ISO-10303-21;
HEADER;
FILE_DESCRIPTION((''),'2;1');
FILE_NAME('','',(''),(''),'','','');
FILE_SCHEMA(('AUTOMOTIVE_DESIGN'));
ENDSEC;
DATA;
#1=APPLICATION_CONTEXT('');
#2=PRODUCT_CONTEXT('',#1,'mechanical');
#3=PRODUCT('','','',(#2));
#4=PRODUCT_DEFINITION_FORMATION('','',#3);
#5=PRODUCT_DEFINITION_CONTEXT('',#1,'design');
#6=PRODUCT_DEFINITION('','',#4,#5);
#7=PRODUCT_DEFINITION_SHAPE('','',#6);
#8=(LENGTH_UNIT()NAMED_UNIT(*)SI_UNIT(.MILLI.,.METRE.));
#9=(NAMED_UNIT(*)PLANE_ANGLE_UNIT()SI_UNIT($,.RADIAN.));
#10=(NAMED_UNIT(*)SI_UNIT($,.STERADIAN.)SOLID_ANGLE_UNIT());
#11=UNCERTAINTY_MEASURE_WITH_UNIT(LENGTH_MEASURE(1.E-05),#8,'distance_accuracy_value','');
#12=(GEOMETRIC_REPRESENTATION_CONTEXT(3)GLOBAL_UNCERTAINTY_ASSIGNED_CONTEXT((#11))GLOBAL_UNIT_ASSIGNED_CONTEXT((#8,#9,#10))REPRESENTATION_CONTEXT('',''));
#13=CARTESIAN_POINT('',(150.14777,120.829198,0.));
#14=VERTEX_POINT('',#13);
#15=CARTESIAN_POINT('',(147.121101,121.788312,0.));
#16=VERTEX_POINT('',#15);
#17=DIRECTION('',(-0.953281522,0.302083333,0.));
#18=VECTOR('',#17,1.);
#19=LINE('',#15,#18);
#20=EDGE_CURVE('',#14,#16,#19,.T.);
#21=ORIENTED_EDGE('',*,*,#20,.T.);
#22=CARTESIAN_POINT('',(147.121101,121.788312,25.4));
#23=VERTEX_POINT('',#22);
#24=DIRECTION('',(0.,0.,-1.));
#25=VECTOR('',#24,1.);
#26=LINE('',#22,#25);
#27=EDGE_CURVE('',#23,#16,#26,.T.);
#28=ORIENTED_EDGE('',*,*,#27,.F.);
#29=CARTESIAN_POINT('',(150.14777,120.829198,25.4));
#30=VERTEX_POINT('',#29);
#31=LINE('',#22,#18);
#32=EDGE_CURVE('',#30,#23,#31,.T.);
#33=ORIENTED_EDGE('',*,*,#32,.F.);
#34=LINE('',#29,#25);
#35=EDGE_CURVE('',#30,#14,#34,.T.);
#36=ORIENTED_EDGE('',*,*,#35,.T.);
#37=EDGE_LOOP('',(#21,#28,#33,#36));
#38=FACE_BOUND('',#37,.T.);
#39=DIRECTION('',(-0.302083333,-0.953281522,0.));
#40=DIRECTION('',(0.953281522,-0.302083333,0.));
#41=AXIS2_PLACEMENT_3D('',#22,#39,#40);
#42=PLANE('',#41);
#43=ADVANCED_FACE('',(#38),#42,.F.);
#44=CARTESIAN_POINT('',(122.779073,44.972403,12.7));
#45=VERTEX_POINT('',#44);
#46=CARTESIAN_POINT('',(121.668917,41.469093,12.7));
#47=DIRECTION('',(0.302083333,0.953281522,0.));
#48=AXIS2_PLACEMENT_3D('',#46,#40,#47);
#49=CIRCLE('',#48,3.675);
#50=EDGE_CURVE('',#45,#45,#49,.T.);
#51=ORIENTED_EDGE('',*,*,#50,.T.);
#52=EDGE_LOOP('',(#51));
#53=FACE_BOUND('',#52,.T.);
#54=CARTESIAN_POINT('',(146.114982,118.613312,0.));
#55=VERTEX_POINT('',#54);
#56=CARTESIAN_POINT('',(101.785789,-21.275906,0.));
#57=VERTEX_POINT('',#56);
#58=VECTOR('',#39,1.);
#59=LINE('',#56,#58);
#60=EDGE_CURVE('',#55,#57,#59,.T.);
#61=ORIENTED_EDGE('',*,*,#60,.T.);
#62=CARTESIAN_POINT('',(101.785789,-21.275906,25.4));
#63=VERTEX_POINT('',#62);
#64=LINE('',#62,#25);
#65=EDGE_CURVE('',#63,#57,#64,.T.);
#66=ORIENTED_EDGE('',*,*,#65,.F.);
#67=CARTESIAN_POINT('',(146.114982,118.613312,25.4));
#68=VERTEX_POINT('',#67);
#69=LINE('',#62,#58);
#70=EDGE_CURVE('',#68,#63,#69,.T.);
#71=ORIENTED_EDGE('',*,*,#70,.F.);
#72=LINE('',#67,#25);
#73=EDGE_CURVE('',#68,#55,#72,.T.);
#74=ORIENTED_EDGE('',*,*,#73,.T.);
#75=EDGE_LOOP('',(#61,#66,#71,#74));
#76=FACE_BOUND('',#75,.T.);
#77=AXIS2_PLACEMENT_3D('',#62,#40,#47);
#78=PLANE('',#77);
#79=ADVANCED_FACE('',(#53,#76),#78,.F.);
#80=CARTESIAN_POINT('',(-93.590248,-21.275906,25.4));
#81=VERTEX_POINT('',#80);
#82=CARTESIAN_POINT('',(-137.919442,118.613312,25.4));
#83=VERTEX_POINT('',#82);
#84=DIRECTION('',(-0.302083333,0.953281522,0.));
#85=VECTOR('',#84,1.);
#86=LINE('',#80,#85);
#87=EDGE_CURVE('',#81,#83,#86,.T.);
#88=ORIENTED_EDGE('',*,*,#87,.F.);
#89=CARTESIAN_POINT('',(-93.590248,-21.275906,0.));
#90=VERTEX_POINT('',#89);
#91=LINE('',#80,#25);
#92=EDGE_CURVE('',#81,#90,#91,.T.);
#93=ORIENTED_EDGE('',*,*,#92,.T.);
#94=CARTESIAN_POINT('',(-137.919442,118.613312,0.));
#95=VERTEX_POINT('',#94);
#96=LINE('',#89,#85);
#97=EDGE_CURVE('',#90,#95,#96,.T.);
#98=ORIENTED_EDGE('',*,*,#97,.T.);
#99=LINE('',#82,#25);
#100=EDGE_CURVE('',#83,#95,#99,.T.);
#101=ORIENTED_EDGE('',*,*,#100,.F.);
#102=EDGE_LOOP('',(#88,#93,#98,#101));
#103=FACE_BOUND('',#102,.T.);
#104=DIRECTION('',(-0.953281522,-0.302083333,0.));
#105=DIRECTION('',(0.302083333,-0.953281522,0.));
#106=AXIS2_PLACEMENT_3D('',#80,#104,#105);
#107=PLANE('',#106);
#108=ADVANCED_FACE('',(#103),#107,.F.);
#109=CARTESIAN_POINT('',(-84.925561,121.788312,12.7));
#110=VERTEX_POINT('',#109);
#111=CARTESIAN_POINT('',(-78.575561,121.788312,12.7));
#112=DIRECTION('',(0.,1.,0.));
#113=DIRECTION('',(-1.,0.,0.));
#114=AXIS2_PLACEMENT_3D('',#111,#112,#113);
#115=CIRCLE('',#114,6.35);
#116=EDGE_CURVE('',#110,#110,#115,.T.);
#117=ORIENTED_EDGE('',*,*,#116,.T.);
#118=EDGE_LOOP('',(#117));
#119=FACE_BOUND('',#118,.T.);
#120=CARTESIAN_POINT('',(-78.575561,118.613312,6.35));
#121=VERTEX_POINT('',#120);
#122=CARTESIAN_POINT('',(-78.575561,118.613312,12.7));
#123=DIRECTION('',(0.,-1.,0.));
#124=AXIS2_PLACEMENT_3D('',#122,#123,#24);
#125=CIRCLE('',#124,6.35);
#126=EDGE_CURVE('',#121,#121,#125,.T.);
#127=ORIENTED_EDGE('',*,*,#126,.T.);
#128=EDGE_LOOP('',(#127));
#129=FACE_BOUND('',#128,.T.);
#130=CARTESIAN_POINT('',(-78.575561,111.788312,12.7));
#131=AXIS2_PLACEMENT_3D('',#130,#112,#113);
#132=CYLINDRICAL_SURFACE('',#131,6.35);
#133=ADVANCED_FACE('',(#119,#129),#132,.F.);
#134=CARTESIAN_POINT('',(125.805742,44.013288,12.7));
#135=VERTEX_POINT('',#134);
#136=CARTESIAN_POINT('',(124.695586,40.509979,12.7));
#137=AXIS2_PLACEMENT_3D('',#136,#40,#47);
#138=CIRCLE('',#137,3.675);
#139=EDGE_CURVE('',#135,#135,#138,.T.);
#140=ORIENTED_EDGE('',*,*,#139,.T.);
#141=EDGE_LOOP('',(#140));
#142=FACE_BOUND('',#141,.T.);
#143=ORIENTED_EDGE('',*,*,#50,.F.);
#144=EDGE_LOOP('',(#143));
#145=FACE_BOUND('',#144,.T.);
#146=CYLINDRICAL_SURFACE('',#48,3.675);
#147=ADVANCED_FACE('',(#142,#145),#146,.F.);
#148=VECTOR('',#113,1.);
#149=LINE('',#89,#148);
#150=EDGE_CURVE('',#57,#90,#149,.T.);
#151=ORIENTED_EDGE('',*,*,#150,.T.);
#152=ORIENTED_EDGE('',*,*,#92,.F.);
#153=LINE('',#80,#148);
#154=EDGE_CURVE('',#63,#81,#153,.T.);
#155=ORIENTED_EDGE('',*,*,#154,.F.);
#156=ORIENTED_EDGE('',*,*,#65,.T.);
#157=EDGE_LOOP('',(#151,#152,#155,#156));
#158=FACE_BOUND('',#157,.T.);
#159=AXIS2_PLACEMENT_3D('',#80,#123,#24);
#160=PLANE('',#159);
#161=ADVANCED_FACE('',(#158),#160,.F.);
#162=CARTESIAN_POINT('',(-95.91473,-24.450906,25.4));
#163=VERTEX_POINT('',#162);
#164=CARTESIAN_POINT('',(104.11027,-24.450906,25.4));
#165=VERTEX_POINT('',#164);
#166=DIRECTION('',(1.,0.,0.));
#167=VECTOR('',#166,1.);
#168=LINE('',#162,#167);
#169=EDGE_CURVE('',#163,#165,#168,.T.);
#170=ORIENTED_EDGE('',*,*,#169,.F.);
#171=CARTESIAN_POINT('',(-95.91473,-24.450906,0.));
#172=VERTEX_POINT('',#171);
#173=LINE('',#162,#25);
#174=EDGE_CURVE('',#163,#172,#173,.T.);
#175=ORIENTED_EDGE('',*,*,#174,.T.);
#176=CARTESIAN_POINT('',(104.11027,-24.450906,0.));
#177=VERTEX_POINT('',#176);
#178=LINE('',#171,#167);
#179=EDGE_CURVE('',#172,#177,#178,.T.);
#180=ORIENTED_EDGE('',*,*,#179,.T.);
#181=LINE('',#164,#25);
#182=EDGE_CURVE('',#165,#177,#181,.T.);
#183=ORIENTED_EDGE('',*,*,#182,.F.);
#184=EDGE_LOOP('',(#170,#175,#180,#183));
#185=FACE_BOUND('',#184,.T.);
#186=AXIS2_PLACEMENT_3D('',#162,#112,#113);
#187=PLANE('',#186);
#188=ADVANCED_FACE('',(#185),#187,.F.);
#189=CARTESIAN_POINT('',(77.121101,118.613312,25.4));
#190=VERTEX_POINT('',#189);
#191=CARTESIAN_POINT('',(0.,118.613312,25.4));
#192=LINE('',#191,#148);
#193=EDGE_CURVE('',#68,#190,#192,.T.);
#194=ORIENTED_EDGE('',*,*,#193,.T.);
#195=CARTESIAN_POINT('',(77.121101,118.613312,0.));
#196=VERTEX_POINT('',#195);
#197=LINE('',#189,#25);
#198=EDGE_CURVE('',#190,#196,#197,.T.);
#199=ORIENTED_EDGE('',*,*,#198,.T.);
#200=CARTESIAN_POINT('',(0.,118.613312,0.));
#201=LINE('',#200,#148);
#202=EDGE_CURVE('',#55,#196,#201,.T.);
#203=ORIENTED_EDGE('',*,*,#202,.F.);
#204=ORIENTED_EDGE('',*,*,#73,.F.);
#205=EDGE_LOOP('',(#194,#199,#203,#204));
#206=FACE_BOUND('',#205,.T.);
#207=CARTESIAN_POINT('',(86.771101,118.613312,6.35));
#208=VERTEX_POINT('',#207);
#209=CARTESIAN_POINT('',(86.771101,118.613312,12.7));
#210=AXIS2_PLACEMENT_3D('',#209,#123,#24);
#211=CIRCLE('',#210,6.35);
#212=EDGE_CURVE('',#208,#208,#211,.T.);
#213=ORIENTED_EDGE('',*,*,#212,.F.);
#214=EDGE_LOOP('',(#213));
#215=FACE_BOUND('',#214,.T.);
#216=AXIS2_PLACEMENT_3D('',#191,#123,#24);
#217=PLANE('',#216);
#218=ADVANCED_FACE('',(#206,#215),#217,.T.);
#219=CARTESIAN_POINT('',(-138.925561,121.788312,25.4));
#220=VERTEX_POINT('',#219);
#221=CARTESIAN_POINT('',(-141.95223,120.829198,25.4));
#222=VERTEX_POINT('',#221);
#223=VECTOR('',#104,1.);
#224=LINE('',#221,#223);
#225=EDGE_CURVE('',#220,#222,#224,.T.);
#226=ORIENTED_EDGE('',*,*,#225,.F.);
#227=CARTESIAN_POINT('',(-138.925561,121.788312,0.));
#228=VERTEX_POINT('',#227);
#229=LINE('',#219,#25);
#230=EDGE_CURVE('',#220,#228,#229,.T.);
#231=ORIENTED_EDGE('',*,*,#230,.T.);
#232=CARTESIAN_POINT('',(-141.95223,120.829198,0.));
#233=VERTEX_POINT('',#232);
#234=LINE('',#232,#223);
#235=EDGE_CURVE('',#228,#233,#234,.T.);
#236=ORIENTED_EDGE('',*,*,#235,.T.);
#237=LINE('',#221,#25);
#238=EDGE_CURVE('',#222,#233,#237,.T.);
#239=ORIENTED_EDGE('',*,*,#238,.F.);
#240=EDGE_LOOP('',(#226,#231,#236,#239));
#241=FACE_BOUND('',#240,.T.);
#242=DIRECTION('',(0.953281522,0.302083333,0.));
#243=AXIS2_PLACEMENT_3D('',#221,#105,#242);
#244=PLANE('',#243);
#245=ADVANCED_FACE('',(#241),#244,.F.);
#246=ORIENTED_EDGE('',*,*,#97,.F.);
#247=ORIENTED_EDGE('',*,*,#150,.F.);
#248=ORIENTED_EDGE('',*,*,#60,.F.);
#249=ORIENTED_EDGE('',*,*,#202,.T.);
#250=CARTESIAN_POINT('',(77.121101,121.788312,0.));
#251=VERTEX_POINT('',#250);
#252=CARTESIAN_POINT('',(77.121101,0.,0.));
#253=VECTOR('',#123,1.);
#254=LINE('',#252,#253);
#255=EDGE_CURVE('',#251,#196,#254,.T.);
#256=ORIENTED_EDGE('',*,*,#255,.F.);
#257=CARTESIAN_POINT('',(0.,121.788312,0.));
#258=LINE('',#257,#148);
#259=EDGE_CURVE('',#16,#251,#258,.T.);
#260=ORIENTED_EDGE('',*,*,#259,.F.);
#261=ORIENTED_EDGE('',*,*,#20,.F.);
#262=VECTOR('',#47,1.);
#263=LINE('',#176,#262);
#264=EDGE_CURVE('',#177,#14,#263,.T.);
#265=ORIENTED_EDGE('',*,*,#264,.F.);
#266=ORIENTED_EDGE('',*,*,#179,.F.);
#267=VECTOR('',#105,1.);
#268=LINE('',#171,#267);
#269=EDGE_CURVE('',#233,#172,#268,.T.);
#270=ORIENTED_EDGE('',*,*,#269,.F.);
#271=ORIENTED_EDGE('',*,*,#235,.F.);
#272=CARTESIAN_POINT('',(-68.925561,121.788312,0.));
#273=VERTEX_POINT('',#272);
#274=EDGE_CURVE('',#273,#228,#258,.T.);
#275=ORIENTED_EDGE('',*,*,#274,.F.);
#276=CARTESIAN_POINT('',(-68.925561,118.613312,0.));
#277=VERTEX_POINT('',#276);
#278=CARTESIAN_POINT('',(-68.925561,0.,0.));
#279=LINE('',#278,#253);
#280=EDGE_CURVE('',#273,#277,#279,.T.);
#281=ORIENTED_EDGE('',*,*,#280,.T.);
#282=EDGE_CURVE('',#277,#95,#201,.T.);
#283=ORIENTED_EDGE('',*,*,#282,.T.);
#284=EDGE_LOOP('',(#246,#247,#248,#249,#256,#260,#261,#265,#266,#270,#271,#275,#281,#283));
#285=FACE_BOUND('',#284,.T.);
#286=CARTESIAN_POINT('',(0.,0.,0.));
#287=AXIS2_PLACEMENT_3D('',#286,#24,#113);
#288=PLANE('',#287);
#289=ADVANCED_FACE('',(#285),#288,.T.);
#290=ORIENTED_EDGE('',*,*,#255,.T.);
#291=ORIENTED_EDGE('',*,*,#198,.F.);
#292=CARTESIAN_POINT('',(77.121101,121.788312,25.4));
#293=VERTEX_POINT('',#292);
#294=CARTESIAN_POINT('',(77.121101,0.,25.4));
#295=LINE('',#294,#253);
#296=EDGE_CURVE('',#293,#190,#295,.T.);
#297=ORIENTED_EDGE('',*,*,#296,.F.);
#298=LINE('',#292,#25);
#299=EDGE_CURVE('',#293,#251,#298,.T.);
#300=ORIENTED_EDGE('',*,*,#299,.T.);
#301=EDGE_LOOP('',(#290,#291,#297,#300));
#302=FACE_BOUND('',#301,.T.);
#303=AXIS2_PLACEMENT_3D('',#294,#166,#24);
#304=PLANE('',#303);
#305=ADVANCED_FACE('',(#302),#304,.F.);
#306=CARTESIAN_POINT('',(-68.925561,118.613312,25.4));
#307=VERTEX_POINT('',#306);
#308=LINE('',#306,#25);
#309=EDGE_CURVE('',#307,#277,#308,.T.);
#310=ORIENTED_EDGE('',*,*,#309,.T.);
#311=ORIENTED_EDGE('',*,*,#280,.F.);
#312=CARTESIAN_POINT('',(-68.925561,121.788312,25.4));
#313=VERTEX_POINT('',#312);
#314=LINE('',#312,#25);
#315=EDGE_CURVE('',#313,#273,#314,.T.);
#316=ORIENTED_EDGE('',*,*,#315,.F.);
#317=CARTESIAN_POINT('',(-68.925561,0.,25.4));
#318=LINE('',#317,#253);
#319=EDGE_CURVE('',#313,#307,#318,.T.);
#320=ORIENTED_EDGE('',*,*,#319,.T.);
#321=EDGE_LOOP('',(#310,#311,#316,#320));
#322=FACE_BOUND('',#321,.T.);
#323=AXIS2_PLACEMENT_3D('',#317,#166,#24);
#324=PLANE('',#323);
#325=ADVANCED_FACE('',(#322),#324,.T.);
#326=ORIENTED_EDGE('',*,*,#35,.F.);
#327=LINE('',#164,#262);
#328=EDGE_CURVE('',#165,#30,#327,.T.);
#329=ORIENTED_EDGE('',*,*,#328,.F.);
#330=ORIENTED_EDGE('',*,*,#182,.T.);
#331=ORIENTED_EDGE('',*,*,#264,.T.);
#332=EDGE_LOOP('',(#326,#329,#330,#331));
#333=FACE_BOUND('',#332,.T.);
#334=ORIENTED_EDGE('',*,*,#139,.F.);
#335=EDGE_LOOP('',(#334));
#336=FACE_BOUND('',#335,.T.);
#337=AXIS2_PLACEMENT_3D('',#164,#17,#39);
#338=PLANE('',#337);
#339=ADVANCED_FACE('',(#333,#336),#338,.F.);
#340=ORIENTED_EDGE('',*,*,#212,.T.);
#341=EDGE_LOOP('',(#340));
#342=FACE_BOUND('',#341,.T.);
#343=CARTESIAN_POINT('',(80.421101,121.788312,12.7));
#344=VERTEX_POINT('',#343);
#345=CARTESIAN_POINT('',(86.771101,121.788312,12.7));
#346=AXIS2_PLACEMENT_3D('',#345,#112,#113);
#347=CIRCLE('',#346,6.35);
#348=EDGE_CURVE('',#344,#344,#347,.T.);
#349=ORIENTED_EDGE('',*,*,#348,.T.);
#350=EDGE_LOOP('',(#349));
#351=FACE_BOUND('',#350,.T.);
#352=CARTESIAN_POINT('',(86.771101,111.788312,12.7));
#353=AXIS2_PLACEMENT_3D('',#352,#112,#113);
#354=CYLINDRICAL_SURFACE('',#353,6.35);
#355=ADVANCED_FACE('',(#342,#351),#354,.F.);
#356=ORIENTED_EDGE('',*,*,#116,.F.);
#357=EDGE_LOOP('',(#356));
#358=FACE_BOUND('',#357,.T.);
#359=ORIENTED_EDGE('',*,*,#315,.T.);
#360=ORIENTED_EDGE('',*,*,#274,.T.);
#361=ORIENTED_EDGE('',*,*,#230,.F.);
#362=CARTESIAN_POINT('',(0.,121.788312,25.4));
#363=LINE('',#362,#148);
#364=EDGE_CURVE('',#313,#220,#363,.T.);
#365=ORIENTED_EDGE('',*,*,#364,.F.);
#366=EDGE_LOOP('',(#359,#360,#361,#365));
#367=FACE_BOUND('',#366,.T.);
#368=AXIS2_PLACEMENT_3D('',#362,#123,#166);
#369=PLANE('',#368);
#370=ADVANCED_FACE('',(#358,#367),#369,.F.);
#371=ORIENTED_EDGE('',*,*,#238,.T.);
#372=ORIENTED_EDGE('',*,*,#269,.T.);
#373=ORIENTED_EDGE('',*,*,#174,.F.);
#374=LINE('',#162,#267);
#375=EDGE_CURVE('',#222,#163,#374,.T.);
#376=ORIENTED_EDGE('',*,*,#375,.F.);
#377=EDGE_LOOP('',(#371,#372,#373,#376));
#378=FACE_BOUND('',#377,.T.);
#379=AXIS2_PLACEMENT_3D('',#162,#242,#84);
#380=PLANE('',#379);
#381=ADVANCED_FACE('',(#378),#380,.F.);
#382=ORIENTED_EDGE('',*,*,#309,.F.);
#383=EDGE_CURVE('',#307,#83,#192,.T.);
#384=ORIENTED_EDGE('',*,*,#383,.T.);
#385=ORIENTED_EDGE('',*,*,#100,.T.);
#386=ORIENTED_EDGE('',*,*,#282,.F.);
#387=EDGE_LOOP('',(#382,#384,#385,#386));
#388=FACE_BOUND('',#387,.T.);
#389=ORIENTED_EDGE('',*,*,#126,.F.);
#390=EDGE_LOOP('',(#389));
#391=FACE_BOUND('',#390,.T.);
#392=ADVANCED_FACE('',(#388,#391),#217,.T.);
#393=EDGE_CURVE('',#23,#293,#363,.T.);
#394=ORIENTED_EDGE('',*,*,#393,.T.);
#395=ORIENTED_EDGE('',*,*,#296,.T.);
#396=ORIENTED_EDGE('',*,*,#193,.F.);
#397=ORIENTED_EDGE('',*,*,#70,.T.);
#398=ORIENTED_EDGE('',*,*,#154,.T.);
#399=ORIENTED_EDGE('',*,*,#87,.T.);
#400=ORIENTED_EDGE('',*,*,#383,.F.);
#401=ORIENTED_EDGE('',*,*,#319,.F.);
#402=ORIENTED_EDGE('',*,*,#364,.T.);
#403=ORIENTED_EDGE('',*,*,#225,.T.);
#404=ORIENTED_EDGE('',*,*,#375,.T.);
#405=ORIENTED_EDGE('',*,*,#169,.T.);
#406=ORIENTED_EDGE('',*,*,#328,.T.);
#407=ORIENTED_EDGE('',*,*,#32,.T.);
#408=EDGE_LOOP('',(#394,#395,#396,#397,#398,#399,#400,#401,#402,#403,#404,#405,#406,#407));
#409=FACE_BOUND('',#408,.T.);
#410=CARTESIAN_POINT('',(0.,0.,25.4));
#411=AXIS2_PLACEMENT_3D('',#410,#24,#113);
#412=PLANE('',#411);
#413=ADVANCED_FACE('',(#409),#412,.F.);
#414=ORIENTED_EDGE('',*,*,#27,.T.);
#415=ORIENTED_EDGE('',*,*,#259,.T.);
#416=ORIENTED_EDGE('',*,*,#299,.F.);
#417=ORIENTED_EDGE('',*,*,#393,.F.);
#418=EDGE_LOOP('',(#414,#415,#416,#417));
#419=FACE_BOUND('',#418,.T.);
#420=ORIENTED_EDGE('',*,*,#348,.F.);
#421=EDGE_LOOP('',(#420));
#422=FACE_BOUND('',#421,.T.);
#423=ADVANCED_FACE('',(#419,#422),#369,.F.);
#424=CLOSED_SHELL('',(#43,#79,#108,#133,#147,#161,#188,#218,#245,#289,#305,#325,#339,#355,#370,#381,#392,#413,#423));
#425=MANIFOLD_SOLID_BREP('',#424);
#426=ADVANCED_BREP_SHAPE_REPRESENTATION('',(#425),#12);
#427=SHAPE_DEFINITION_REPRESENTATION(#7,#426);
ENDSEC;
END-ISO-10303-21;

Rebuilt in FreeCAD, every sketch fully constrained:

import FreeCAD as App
import Part
import Sketcher

V = App.Vector
Q = App.Units.Quantity

doc = App.newDocument("Part")
body = doc.addObject("PartDesign::Body", "Body")

# Sketch on XY plane
sketch1 = body.newObject("Sketcher::SketchObject", "Sketch")
sketch1.AttachmentSupport = (doc.getObject("XY_Plane"), [""])
sketch1.MapMode = "FlatFace"
sketch1.addGeometry([
    Part.LineSegment(V(-95.91473, -24.450906, 0), V(104.11027, -24.450906, 0)),  # 0
    Part.LineSegment(V(104.11027, -24.450906, 0), V(150.14777, 120.829198, 0)),  # 1
    Part.LineSegment(V(150.14777, 120.829198, 0), V(147.121101, 121.788312, 0)),  # 2
    Part.LineSegment(V(147.121101, 121.788312, 0), V(101.785789, -21.275906, 0)),  # 3
    Part.LineSegment(V(101.785789, -21.275906, 0), V(-93.590248, -21.275906, 0)),  # 4
    Part.LineSegment(V(-93.590248, -21.275906, 0), V(-138.925561, 121.788312, 0)),  # 5
    Part.LineSegment(V(-138.925561, 121.788312, 0), V(-141.95223, 120.829198, 0)),  # 6
    Part.LineSegment(V(-141.95223, 120.829198, 0), V(-95.91473, -24.450906, 0)),  # 7
], False)
sketch1.addConstraint([
    Sketcher.Constraint("Coincident", 0, 2, 1, 1),
    Sketcher.Constraint("Coincident", 1, 2, 2, 1),
    Sketcher.Constraint("Coincident", 2, 2, 3, 1),
    Sketcher.Constraint("Coincident", 3, 2, 4, 1),
    Sketcher.Constraint("Coincident", 4, 2, 5, 1),
    Sketcher.Constraint("Coincident", 5, 2, 6, 1),
    Sketcher.Constraint("Coincident", 6, 2, 7, 1),
    Sketcher.Constraint("Coincident", 7, 2, 0, 1),
    Sketcher.Constraint("Horizontal", 0),
    Sketcher.Constraint("Horizontal", 4),
    Sketcher.Constraint("Perpendicular", 1, 2),
    Sketcher.Constraint("Perpendicular", 2, 3),
    Sketcher.Constraint("Perpendicular", 5, 6),
    Sketcher.Constraint("Perpendicular", 6, 7),
    Sketcher.Constraint("Horizontal", 2, 2, 5, 2),
    Sketcher.Constraint("Horizontal", 1, 2, 6, 2),
    Sketcher.Constraint("Equal", 3, 5),
    Sketcher.Constraint("Distance", 1, Q("6 in")),
    Sketcher.Constraint("DistanceX", 0, 1, 0, 2, Q("7.875 in")),
    Sketcher.Constraint("Distance", 2, Q("0.125 in")),
    Sketcher.Constraint("DistanceX", 0, 2, 1, 2, Q("1.8125 in")),
    Sketcher.Constraint("DistanceY", 0, 2, 3, 2, Q("0.125 in")),
    Sketcher.Constraint("DistanceX", -1, 1, 2, 2, Q("147.121101 mm")),
    Sketcher.Constraint("DistanceY", 0, 2, -1, 1, Q("24.450906 mm")),
])
pad1 = body.newObject("PartDesign::Pad", "Pad")
pad1.Profile = sketch1
pad1.Length = Q("1 in")

# Sketch on XY plane
sketch2 = body.newObject("Sketcher::SketchObject", "Sketch001")
sketch2.AttachmentSupport = (doc.getObject("XY_Plane"), [""])
sketch2.MapMode = "FlatFace"
sketch2.addGeometry([
    Part.LineSegment(V(77.121101, 121.788312, 0), V(147.121101, 121.788312, 0)),  # 0
    Part.LineSegment(V(147.121101, 121.788312, 0), V(150.14777, 120.829198, 0)),  # 1
    Part.LineSegment(V(150.14777, 120.829198, 0), V(146.114982, 118.613312, 0)),  # 2
    Part.LineSegment(V(146.114982, 118.613312, 0), V(77.121101, 118.613312, 0)),  # 3
    Part.LineSegment(V(77.121101, 118.613312, 0), V(77.121101, 121.788312, 0)),  # 4
    Part.LineSegment(V(-138.925561, 121.788312, 0), V(-68.925561, 121.788312, 0)),  # 5
    Part.LineSegment(V(-68.925561, 121.788312, 0), V(-68.925561, 118.613312, 0)),  # 6
    Part.LineSegment(V(-68.925561, 118.613312, 0), V(-137.919442, 118.613312, 0)),  # 7
    Part.LineSegment(V(-137.919442, 118.613312, 0), V(-141.95223, 120.829198, 0)),  # 8
    Part.LineSegment(V(-141.95223, 120.829198, 0), V(-138.925561, 121.788312, 0)),  # 9
], False)
sketch2.addConstraint([
    Sketcher.Constraint("Coincident", 0, 2, 1, 1),
    Sketcher.Constraint("Coincident", 1, 2, 2, 1),
    Sketcher.Constraint("Coincident", 2, 2, 3, 1),
    Sketcher.Constraint("Coincident", 3, 2, 4, 1),
    Sketcher.Constraint("Coincident", 4, 2, 0, 1),
    Sketcher.Constraint("Coincident", 5, 2, 6, 1),
    Sketcher.Constraint("Coincident", 6, 2, 7, 1),
    Sketcher.Constraint("Coincident", 7, 2, 8, 1),
    Sketcher.Constraint("Coincident", 8, 2, 9, 1),
    Sketcher.Constraint("Coincident", 9, 2, 5, 1),
    Sketcher.Constraint("Horizontal", 0),
    Sketcher.Constraint("Horizontal", 3),
    Sketcher.Constraint("Vertical", 4),
    Sketcher.Constraint("Horizontal", 5),
    Sketcher.Constraint("Vertical", 6),
    Sketcher.Constraint("Horizontal", 7),
    Sketcher.Constraint("Horizontal", 4, 2, 5, 2),
    Sketcher.Constraint("Horizontal", 3, 2, 6, 2),
    Sketcher.Constraint("Horizontal", 1, 2, 8, 2),
    Sketcher.Constraint("Equal", 0, 5),
    Sketcher.Constraint("Equal", 3, 7),
    Sketcher.Constraint("Equal", 2, 8),
    Sketcher.Constraint("DistanceY", 4, 1, 4, 2, Q("0.125 in")),
    Sketcher.Constraint("Distance", 1, Q("0.125 in")),
    Sketcher.Constraint("DistanceX", 0, 1, 0, 2, Q("70 mm")),
    Sketcher.Constraint("DistanceX", 3, 2, 3, 1, Q("68.993881 mm")),
    Sketcher.Constraint("DistanceX", -1, 1, 0, 2, Q("147.121101 mm")),
    Sketcher.Constraint("Distance", 2, Q("4.60147 mm")),
    Sketcher.Constraint("DistanceX", 5, 2, -1, 1, Q("68.925561 mm")),
    Sketcher.Constraint("DistanceY", -1, 1, 0, 2, Q("121.788312 mm")),
])
pad2 = body.newObject("PartDesign::Pad", "Pad001")
pad2.Profile = sketch2
pad2.Length = Q("1 in")

# Sketch on XZ plane
sketch3 = body.newObject("Sketcher::SketchObject", "Sketch002")
sketch3.AttachmentSupport = (doc.getObject("XZ_Plane"), [""])
sketch3.MapMode = "FlatFace"
sketch3.AttachmentOffset = App.Placement(V(0, 0, -121.788312), App.Rotation())
sketch3.addGeometry([
    Part.Circle(V(-78.575561, 12.7, 0), V(0, 0, 1), 6.35),
    Part.Circle(V(86.771101, 12.7, 0), V(0, 0, 1), 6.35),
], False)
sketch3.addConstraint([
    Sketcher.Constraint("Equal", 0, 1),
    Sketcher.Constraint("Horizontal", 0, 3, 1, 3),
    Sketcher.Constraint("Diameter", 0, Q("0.5 in")),
    Sketcher.Constraint("DistanceY", -1, 1, 0, 3, Q("0.5 in")),
    Sketcher.Constraint("DistanceX", -1, 1, 1, 3, Q("86.771101 mm")),
    Sketcher.Constraint("DistanceX", 0, 3, -1, 1, Q("78.575561 mm")),
])
pocket1 = body.newObject("PartDesign::Pocket", "Pocket")
pocket1.Profile = sketch3
pocket1.Length = 10
pocket1.Reversed = True

# Sketch on an angled plane
sketch4 = body.newObject("Sketcher::SketchObject", "Sketch003")
sketch4.Placement = App.Placement(V(101.650895, -32.211934, 0), App.Rotation(V(0, 0, -1), V(0.302083333, 0.953281522, 0), V(0.953281522, -0.302083333, 0), "ZXY"))
sketch4.addGeometry(Part.Circle(V(-12.7, 76.285872, 0), V(0, 0, 1), 3.675), False)
sketch4.addConstraint([
    Sketcher.Constraint("DistanceX", 0, 3, -1, 1, Q("0.5 in")),
    Sketcher.Constraint("Diameter", 0, Q("7.35 mm")),
    Sketcher.Constraint("DistanceY", -1, 1, 0, 3, Q("76.285872 mm")),
])
pocket2 = body.newObject("PartDesign::Pocket", "Pocket001")
pocket2.Profile = sketch4
pocket2.Length = Q("0.125 in")

doc.recompute()
